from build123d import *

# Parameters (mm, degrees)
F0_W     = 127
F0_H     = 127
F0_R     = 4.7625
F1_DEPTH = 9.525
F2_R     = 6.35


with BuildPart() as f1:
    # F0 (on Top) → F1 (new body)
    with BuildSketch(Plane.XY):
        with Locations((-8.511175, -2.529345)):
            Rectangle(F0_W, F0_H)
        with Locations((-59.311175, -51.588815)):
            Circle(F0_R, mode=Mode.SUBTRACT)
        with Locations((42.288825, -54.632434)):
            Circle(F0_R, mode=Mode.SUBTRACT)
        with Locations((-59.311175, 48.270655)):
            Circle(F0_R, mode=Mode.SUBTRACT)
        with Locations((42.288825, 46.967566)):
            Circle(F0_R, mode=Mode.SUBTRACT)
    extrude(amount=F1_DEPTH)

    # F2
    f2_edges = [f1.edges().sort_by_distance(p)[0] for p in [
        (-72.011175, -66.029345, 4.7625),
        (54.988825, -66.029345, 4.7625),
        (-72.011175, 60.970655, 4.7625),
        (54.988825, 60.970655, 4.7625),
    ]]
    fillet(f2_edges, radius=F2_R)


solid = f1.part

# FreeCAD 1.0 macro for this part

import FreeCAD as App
import Part
import Sketcher
Q = App.Units.Quantity


def edges_at(feature, points):
    """Names of the edges that pass closest to the given points."""
    edges = feature.Shape.Edges
    near = lambda p: min(range(len(edges)), key=lambda i: edges[i].distToShape(Part.Vertex(*p))[0])
    return sorted({f"Edge{near(p) + 1}" for p in points})

doc = App.newDocument("Part")
params = doc.addObject("Spreadsheet::Sheet", "Params")
for row, (alias, value) in enumerate([
    ("sketch1_width", "5 in"),
    ("sketch1_diameter", "0.375 in"),
    ("pad1_length", "0.375 in"),
    ("fillet_radius", "0.25 in"),
], start=1):
    params.set(f"A{row}", alias)
    params.set(f"B{row}", "=" + value)
    params.setAlias(f"B{row}", alias)

body = doc.addObject("PartDesign::Body", "Body")

# Sketch on XY plane
sketch1 = doc.addObject("Sketcher::SketchObject", "Sketch")
body.addObject(sketch1)
sketch1.AttachmentSupport = (doc.XY_Plane, [""])
sketch1.MapMode = "FlatFace"
sketch1.addGeometry([
    Part.LineSegment(App.Vector(-72.011175, 60.970655, 0), App.Vector(-72.011175, -66.029345, 0)),  # 0
    Part.LineSegment(App.Vector(-72.011175, -66.029345, 0), App.Vector(54.988825, -66.029345, 0)),  # 1
    Part.LineSegment(App.Vector(54.988825, -66.029345, 0), App.Vector(54.988825, 60.970655, 0)),  # 2
    Part.LineSegment(App.Vector(54.988825, 60.970655, 0), App.Vector(-72.011175, 60.970655, 0)),  # 3
    Part.Circle(App.Vector(-59.311175, -51.588815, 0), App.Vector(0, 0, 1), 4.7625),  # 4
    Part.Circle(App.Vector(42.288825, -54.632434, 0), App.Vector(0, 0, 1), 4.7625),  # 5
    Part.Circle(App.Vector(-59.311175, 48.270655, 0), App.Vector(0, 0, 1), 4.7625),  # 6
    Part.Circle(App.Vector(42.288825, 46.967566, 0), App.Vector(0, 0, 1), 4.7625),  # 7
], False)
sketch1.addConstraint([
    Sketcher.Constraint("Coincident", 0, 2, 1, 1),
    Sketcher.Constraint("Coincident", 1, 2, 2, 1),
    Sketcher.Constraint("Coincident", 2, 2, 3, 1),
    Sketcher.Constraint("Coincident", 3, 2, 0, 1),
    Sketcher.Constraint("Vertical", 0),
    Sketcher.Constraint("Horizontal", 1),
    Sketcher.Constraint("Vertical", 2),
    Sketcher.Constraint("Horizontal", 3),
    Sketcher.Constraint("Equal", 4, 5),
    Sketcher.Constraint("Equal", 5, 6),
    Sketcher.Constraint("Equal", 6, 7),
    Sketcher.Constraint("Vertical", 4, 3, 6, 3),
    Sketcher.Constraint("Vertical", 5, 3, 7, 3),
    Sketcher.Constraint("Equal", 3, 0),
    Sketcher.Constraint("DistanceX", 1, 1, 1, 2, Q("5 in")),
    Sketcher.Constraint("Diameter", 4, Q("0.375 in")),
    Sketcher.Constraint("DistanceX", 4, 3, 5, 3, Q("4 in")),
    Sketcher.Constraint("DistanceY", 5, 3, 7, 3, Q("4 in")),
    Sketcher.Constraint("DistanceX", 0, 2, 4, 3, Q("0.5 in")),
    Sketcher.Constraint("DistanceY", 0, 2, 6, 3, Q("4.5 in")),
    Sketcher.Constraint("DistanceY", 5, 3, 4, 3, Q("3.043619 mm")),
    Sketcher.Constraint("DistanceY", 4, 3, 6, 3, Q("99.85947 mm")),
    Sketcher.Constraint("DistanceX", 4, 3, -1, 1, Q("59.311175 mm")),
    Sketcher.Constraint("DistanceY", 4, 3, -1, 1, Q("51.588815 mm")),
])
sketch1.setExpression("Constraints[14]", "Params.sketch1_width")
sketch1.setExpression("Constraints[15]", "Params.sketch1_diameter")
pad1 = doc.addObject("PartDesign::Pad", "Pad")
body.addObject(pad1)
pad1.Profile = sketch1
pad1.setExpression("Length", "Params.pad1_length")
doc.recompute()

fillet = doc.addObject("PartDesign::Fillet", "Fillet")
body.addObject(fillet)
fillet.Base = (pad1, edges_at(pad1, [
    (-72.011, -66.029, 4.763),
    (54.989, -66.029, 4.763),
    (-72.011, 60.971, 4.763),
    (54.989, 60.971, 4.763),
]))
fillet.setExpression("Radius", "Params.fillet_radius")

doc.recompute()
